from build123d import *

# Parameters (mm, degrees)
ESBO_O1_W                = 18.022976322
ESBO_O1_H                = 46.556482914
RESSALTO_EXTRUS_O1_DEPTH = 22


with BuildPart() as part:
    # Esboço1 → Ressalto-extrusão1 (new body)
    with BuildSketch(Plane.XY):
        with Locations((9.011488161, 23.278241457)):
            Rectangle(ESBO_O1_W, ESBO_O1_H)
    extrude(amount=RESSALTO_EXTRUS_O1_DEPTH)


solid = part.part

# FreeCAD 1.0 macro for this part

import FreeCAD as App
import Part
import Sketcher

V = App.Vector
Q = App.Units.Quantity


def add_polygon(sketch, points):
    """Adds a closed chain of lines whose ends are joined by coincident constraints."""
    first, n = sketch.GeometryCount, len(points)
    for a, b in zip(points, points[1:] + points[:1]):
        sketch.addGeometry(Part.LineSegment(App.Vector(*a, 0), App.Vector(*b, 0)), False)
    for i in range(n):
        sketch.addConstraint(Sketcher.Constraint("Coincident", first + i, 2, first + (i + 1) % n, 1))

doc = App.newDocument("Part")
body = doc.addObject("PartDesign::Body", "Body")

sketch1 = body.newObject("Sketcher::SketchObject", "Sketch")
sketch1.AttachmentSupport = (doc.getObject("XY_Plane"), [""])
sketch1.MapMode = "FlatFace"
add_polygon(sketch1, [(0, 46.556483), (0, 0), (18.022976, 0), (18.022976, 46.556483)])
sketch1.addConstraint(Sketcher.Constraint("Vertical", 0))
sketch1.addConstraint(Sketcher.Constraint("Horizontal", 1))
sketch1.addConstraint(Sketcher.Constraint("Vertical", 2))
sketch1.addConstraint(Sketcher.Constraint("Horizontal", 3))
sketch1.addConstraint(Sketcher.Constraint("Coincident", 0, 2, -1, 1))
sketch1.addConstraint(Sketcher.Constraint("DistanceX", 1, 1, 1, 2, Q("18.022976 mm")))
sketch1.addConstraint(Sketcher.Constraint("DistanceY", 0, 2, 0, 1, Q("46.556483 mm")))
pad1 = body.newObject("PartDesign::Pad", "Pad")
pad1.Profile = sketch1
pad1.Length = 22

doc.recompute()
